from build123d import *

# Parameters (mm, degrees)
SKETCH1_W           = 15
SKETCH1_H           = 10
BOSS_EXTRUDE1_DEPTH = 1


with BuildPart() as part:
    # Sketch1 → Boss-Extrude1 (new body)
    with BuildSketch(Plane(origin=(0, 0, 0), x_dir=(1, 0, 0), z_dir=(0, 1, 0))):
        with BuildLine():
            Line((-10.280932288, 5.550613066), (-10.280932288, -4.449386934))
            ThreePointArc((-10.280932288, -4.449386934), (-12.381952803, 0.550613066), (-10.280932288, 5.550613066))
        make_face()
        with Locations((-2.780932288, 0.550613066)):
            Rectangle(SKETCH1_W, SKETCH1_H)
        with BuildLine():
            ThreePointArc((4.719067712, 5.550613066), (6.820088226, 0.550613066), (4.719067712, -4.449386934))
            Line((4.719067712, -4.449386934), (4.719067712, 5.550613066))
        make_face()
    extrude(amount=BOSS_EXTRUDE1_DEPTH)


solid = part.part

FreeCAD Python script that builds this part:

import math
import FreeCAD as App
import Part
import Sketcher
from FreeCAD import Vector

doc = App.newDocument("Part")
params = doc.addObject("Spreadsheet::Sheet", "Params")
for row, (alias, value) in enumerate([
    ("sketch1_radius", "7 mm"),
    ("sketch1_width", "15 mm"),
    ("sketch1_height", "5 mm"),
    ("pad1_length", "1 mm"),
], start=1):
    params.set(f"A{row}", alias)
    params.set(f"B{row}", "=" + value)
    params.setAlias(f"B{row}", alias)

body = doc.addObject("PartDesign::Body", "Body")

sketch1 = body.newObject("Sketcher::SketchObject", "Sketch")
sketch1.AttachmentSupport = (doc.getObject("XZ_Plane"), [""])
sketch1.MapMode = "FlatFace"
sketch1.addGeometry(Part.ArcOfCircle(Part.Circle(Vector(-5.381953, -0.550613, 0), Vector(0, 0, 1), 7), math.radians(134.415309), math.radians(225.584691)), False)
sketch1.addGeometry(Part.LineSegment(Vector(-10.280932, 4.449387, 0), Vector(4.719068, 4.449387, 0)), False)
sketch1.addGeometry(Part.ArcOfCircle(Part.Circle(Vector(-0.179912, -0.550613, 0), Vector(0, 0, 1), 7), math.radians(-45.584691), math.radians(45.584691)), False)
sketch1.addGeometry(Part.LineSegment(Vector(4.719068, -5.550613, 0), Vector(-10.280932, -5.550613, 0)), False)
sketch1.addConstraint(Sketcher.Constraint("Coincident", 0, 1, 1, 1))
sketch1.addConstraint(Sketcher.Constraint("Coincident", 1, 2, 2, 2))
sketch1.addConstraint(Sketcher.Constraint("Coincident", 2, 1, 3, 1))
sketch1.addConstraint(Sketcher.Constraint("Coincident", 3, 2, 0, 2))
sketch1.addConstraint(Sketcher.Constraint("Horizontal", 1))
sketch1.addConstraint(Sketcher.Constraint("Horizontal", 3))
sketch1.addConstraint(Sketcher.Constraint("Equal", 0, 2))
sketch1.addConstraint(Sketcher.Constraint("Horizontal", 0, 3, 2, 3))
sketch1.addConstraint(Sketcher.Constraint("Vertical", 1, 2, 2, 1))
sketch1.addConstraint(Sketcher.Constraint("Radius", 0, 7.0))
sketch1.addConstraint(Sketcher.Constraint("DistanceX", 1, 1, 1, 2, 15.0))
sketch1.addConstraint(Sketcher.Constraint("DistanceY", 0, 3, 0, 1, 5.0))
sketch1.addConstraint(Sketcher.Constraint("DistanceX", 2, 3, -1, 1, 0.179912))
sketch1.addConstraint(Sketcher.Constraint("DistanceY", 0, 3, -1, 1, 0.550613))
sketch1.setExpression("Constraints[9]", "Params.sketch1_radius")
sketch1.setExpression("Constraints[10]", "Params.sketch1_width")
sketch1.setExpression("Constraints[11]", "Params.sketch1_height")
pad1 = body.newObject("PartDesign::Pad", "Pad")
pad1.Profile = sketch1
pad1.setExpression("Length", "Params.pad1_length")
pad1.Reversed = True

doc.recompute()
